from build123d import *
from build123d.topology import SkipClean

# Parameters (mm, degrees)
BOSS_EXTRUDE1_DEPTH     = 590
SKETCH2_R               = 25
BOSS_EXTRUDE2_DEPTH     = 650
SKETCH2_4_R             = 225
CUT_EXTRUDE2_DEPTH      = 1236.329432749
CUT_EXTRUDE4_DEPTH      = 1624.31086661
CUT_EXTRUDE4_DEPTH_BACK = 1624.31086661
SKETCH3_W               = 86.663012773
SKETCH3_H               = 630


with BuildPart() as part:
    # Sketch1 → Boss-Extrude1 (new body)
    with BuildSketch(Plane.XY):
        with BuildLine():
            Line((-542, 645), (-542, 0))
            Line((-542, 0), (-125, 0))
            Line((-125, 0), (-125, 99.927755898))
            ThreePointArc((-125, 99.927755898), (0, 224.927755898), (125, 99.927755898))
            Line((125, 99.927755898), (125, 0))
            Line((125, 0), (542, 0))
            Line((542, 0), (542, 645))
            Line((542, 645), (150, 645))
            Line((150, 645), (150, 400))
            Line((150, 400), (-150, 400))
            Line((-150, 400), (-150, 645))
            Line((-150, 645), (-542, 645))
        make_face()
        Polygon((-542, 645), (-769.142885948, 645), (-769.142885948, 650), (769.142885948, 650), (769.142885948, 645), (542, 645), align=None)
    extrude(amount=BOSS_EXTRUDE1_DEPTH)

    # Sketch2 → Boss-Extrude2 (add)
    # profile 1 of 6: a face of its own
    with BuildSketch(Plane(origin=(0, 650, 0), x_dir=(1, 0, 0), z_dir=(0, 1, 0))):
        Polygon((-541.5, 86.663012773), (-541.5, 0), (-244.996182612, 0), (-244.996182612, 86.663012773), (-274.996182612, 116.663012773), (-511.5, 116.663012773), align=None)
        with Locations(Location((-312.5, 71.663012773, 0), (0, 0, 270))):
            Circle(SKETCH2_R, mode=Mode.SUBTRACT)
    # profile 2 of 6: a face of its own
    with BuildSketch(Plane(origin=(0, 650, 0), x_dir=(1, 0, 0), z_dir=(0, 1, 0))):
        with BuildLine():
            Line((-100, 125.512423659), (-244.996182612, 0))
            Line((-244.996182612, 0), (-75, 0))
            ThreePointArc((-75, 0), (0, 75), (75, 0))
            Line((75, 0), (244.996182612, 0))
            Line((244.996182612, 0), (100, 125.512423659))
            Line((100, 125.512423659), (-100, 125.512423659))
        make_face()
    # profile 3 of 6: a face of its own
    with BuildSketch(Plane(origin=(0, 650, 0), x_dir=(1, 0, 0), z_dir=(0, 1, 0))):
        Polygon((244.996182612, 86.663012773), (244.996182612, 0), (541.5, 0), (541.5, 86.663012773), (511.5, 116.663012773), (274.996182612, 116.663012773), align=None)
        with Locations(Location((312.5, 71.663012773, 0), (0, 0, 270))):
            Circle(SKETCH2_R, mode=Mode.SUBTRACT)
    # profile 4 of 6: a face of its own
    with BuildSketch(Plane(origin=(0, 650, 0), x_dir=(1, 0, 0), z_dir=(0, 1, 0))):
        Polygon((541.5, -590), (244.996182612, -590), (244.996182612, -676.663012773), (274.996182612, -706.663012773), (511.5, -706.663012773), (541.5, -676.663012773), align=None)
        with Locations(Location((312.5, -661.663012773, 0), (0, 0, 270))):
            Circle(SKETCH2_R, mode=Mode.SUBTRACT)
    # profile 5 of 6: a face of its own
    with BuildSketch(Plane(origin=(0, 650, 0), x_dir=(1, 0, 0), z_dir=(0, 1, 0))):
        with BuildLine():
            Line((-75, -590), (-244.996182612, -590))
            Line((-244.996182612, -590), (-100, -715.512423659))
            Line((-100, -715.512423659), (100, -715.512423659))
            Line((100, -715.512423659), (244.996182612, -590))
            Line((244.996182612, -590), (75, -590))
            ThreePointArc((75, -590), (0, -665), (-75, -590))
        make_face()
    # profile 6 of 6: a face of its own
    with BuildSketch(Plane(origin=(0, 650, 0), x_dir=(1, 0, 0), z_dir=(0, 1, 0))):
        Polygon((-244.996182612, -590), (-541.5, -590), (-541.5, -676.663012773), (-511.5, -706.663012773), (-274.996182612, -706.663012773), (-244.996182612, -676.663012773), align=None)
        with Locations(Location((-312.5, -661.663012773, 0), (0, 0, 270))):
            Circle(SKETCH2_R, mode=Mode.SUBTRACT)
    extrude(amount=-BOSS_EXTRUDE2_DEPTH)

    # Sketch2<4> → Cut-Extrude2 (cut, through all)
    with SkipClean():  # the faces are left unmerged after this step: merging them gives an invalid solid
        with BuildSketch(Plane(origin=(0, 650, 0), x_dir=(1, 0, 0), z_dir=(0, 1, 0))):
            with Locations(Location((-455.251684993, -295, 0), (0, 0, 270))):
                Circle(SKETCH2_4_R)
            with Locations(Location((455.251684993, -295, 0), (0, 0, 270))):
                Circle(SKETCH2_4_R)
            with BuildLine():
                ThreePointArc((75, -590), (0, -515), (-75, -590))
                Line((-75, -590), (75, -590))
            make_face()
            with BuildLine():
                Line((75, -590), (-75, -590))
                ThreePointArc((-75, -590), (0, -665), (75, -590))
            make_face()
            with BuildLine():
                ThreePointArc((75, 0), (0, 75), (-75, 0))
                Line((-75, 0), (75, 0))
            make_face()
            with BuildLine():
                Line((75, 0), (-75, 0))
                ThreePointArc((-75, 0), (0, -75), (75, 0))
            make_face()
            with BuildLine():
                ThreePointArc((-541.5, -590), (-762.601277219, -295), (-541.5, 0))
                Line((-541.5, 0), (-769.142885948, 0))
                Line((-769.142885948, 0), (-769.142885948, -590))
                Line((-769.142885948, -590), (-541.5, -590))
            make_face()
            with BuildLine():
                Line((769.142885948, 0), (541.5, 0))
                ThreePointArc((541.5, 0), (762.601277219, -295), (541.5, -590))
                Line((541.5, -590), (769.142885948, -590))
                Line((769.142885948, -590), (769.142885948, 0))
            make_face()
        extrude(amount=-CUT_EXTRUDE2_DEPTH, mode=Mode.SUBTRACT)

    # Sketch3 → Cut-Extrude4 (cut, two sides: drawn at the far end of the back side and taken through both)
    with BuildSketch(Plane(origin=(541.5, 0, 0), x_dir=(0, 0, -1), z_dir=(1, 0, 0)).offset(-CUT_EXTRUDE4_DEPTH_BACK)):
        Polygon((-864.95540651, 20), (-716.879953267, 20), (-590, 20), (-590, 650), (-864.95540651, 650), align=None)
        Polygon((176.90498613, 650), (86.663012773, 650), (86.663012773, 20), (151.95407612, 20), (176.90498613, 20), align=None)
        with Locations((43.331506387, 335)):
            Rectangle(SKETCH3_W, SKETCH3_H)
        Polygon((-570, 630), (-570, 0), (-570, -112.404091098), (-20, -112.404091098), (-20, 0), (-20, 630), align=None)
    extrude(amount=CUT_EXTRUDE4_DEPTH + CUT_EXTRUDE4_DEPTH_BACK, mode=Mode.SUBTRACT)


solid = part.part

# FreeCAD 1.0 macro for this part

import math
import FreeCAD as App
import Part
import Sketcher

V = App.Vector
Q = App.Units.Quantity

doc = App.newDocument("Part")
body = doc.addObject("PartDesign::Body", "Body")

sketch1 = body.newObject("Sketcher::SketchObject", "Sketch")
sketch1.AttachmentSupport = (doc.getObject("XY_Plane"), [""])
sketch1.MapMode = "FlatFace"
sketch1.addGeometry([
    Part.LineSegment(V(-542, 645, 0), V(-542, 0, 0)),
    Part.LineSegment(V(-542, 0, 0), V(-125, 0, 0)),
    Part.LineSegment(V(-125, 0, 0), V(-125, 99.927756, 0)),
    Part.ArcOfCircle(Part.Circle(V(0, 99.927756, 0), V(0, 0, 1), 125), math.radians(0), math.radians(180)),
    Part.LineSegment(V(125, 99.927756, 0), V(125, 0, 0)),
    Part.LineSegment(V(125, 0, 0), V(542, 0, 0)),
    Part.LineSegment(V(542, 0, 0), V(542, 645, 0)),
    Part.LineSegment(V(542, 645, 0), V(769.142886, 645, 0)),
    Part.LineSegment(V(769.142886, 645, 0), V(769.142886, 650, 0)),
    Part.LineSegment(V(769.142886, 650, 0), V(-769.142886, 650, 0)),
    Part.LineSegment(V(-769.142886, 650, 0), V(-769.142886, 645, 0)),
    Part.LineSegment(V(-769.142886, 645, 0), V(-542, 645, 0)),
    Part.LineSegment(V(150, 645, 0), V(150, 400, 0)),
    Part.LineSegment(V(150, 400, 0), V(-150, 400, 0)),
    Part.LineSegment(V(-150, 400, 0), V(-150, 645, 0)),
    Part.LineSegment(V(-150, 645, 0), V(150, 645, 0)),
], False)
sketch1.addConstraint([
    Sketcher.Constraint("Coincident", 0, 2, 1, 1),
    Sketcher.Constraint("Coincident", 1, 2, 2, 1),
    Sketcher.Constraint("Tangent", 2, 2, 3, 2),
    Sketcher.Constraint("Tangent", 3, 1, 4, 1),
    Sketcher.Constraint("Coincident", 4, 2, 5, 1),
    Sketcher.Constraint("Coincident", 5, 2, 6, 1),
    Sketcher.Constraint("Coincident", 6, 2, 7, 1),
    Sketcher.Constraint("Coincident", 7, 2, 8, 1),
    Sketcher.Constraint("Coincident", 8, 2, 9, 1),
    Sketcher.Constraint("Coincident", 9, 2, 10, 1),
    Sketcher.Constraint("Coincident", 10, 2, 11, 1),
    Sketcher.Constraint("Coincident", 11, 2, 0, 1),
    Sketcher.Constraint("Coincident", 12, 2, 13, 1),
    Sketcher.Constraint("Coincident", 13, 2, 14, 1),
    Sketcher.Constraint("Coincident", 14, 2, 15, 1),
    Sketcher.Constraint("Coincident", 15, 2, 12, 1),
    Sketcher.Constraint("Vertical", 0),
    Sketcher.Constraint("Horizontal", 1),
    Sketcher.Constraint("Vertical", 2),
    Sketcher.Constraint("Vertical", 4),
    Sketcher.Constraint("Horizontal", 5),
    Sketcher.Constraint("Vertical", 6),
    Sketcher.Constraint("Horizontal", 7),
    Sketcher.Constraint("Vertical", 8),
    Sketcher.Constraint("Horizontal", 9),
    Sketcher.Constraint("Vertical", 10),
    Sketcher.Constraint("Horizontal", 11),
    Sketcher.Constraint("Vertical", 12),
    Sketcher.Constraint("Horizontal", 13),
    Sketcher.Constraint("Vertical", 14),
    Sketcher.Constraint("Horizontal", 15),
    Sketcher.Constraint("Symmetric", 1, 2, 4, 2, -1, 1),
    Sketcher.Constraint("Symmetric", 0, 2, 5, 2, -2),
    Sketcher.Constraint("Symmetric", 7, 2, 10, 2, -2),
    Sketcher.Constraint("Horizontal", 11, 2, 14, 2),
    Sketcher.Constraint("Radius", 3, Q("125 mm")),
    Sketcher.Constraint("DistanceX", 1, 1, 1, 2, Q("417 mm")),
    Sketcher.Constraint("DistanceX", 13, 2, 13, 1, Q("300 mm")),
    Sketcher.Constraint("DistanceY", 0, 2, 0, 1, Q("645 mm")),
    Sketcher.Constraint("DistanceY", 8, 1, 8, 2, Q("5 mm")),
    Sketcher.Constraint("DistanceY", 12, 2, 12, 1, Q("245 mm")),
    Sketcher.Constraint("DistanceX", -1, 1, 12, 2, Q("150 mm")),
    Sketcher.Constraint("DistanceX", 9, 2, 9, 1, Q("1538.285772 mm")),
    Sketcher.Constraint("DistanceY", 2, 1, 2, 2, Q("99.927756 mm")),
])
pad1 = body.newObject("PartDesign::Pad", "Pad")
pad1.Profile = sketch1
pad1.Length = 590

sketch2 = body.newObject("Sketcher::SketchObject", "Sketch001")
sketch2.AttachmentSupport = (doc.getObject("XZ_Plane"), [""])
sketch2.MapMode = "FlatFace"
sketch2.AttachmentOffset = App.Placement(V(0, 0, -650), App.Rotation())
sketch2.addGeometry([
    Part.LineSegment(V(-541.5, -86.663013, 0), V(-541.5, 0, 0)),
    Part.LineSegment(V(-541.5, 0, 0), V(-244.996183, 0, 0)),
    Part.LineSegment(V(-244.996183, 0, 0), V(-244.996183, -86.663013, 0)),
    Part.LineSegment(V(-244.996183, -86.663013, 0), V(-274.996183, -116.663013, 0)),
    Part.LineSegment(V(-274.996183, -116.663013, 0), V(-511.5, -116.663013, 0)),
    Part.LineSegment(V(-511.5, -116.663013, 0), V(-541.5, -86.663013, 0)),
    Part.Circle(V(-312.5, -71.663013, 0), V(0, 0, 1), 25),
    Part.LineSegment(V(-100, -125.512424, 0), V(-244.996183, 0, 0)),
    Part.LineSegment(V(-244.996183, 0, 0), V(-75, 0, 0)),
    Part.ArcOfCircle(Part.Circle(V(0, 0, 0), V(0, 0, 1), 75), math.radians(180), math.radians(360)),
    Part.LineSegment(V(75, 0, 0), V(244.996183, 0, 0)),
    Part.LineSegment(V(244.996183, 0, 0), V(100, -125.512424, 0)),
    Part.LineSegment(V(100, -125.512424, 0), V(-100, -125.512424, 0)),
    Part.LineSegment(V(244.996183, -86.663013, 0), V(244.996183, 0, 0)),
    Part.LineSegment(V(244.996183, 0, 0), V(541.5, 0, 0)),
    Part.LineSegment(V(541.5, 0, 0), V(541.5, -86.663013, 0)),
    Part.LineSegment(V(541.5, -86.663013, 0), V(511.5, -116.663013, 0)),
    Part.LineSegment(V(511.5, -116.663013, 0), V(274.996183, -116.663013, 0)),
    Part.LineSegment(V(274.996183, -116.663013, 0), V(244.996183, -86.663013, 0)),
    Part.Circle(V(312.5, -71.663013, 0), V(0, 0, 1), 25),
    Part.LineSegment(V(541.5, 590, 0), V(244.996183, 590, 0)),
    Part.LineSegment(V(244.996183, 590, 0), V(244.996183, 676.663013, 0)),
    Part.LineSegment(V(244.996183, 676.663013, 0), V(274.996183, 706.663013, 0)),
    Part.LineSegment(V(274.996183, 706.663013, 0), V(511.5, 706.663013, 0)),
    Part.LineSegment(V(511.5, 706.663013, 0), V(541.5, 676.663013, 0)),
    Part.LineSegment(V(541.5, 676.663013, 0), V(541.5, 590, 0)),
    Part.Circle(V(312.5, 661.663013, 0), V(0, 0, 1), 25),
    Part.LineSegment(V(-75, 590, 0), V(-244.996183, 590, 0)),
    Part.LineSegment(V(-244.996183, 590, 0), V(-100, 715.512424, 0)),
    Part.LineSegment(V(-100, 715.512424, 0), V(100, 715.512424, 0)),
    Part.LineSegment(V(100, 715.512424, 0), V(244.996183, 590, 0)),
    Part.LineSegment(V(244.996183, 590, 0), V(75, 590, 0)),
    Part.ArcOfCircle(Part.Circle(V(0, 590, 0), V(0, 0, 1), 75), math.radians(0), math.radians(180)),
    Part.LineSegment(V(-244.996183, 590, 0), V(-541.5, 590, 0)),
    Part.LineSegment(V(-541.5, 590, 0), V(-541.5, 676.663013, 0)),
    Part.LineSegment(V(-541.5, 676.663013, 0), V(-511.5, 706.663013, 0)),
    Part.LineSegment(V(-511.5, 706.663013, 0), V(-274.996183, 706.663013, 0)),
    Part.LineSegment(V(-274.996183, 706.663013, 0), V(-244.996183, 676.663013, 0)),
    Part.LineSegment(V(-244.996183, 676.663013, 0), V(-244.996183, 590, 0)),
    Part.Circle(V(-312.5, 661.663013, 0), V(0, 0, 1), 25),
], False)
sketch2.addConstraint([
    Sketcher.Constraint("Coincident", 0, 2, 1, 1),
    Sketcher.Constraint("Coincident", 1, 2, 2, 1),
    Sketcher.Constraint("Coincident", 2, 2, 3, 1),
    Sketcher.Constraint("Coincident", 3, 2, 4, 1),
    Sketcher.Constraint("Coincident", 4, 2, 5, 1),
    Sketcher.Constraint("Coincident", 5, 2, 0, 1),
    Sketcher.Constraint("Coincident", 7, 2, 8, 1),
    Sketcher.Constraint("Coincident", 8, 2, 9, 1),
    Sketcher.Constraint("Coincident", 9, 2, 10, 1),
    Sketcher.Constraint("Coincident", 10, 2, 11, 1),
    Sketcher.Constraint("Coincident", 11, 2, 12, 1),
    Sketcher.Constraint("Coincident", 12, 2, 7, 1),
    Sketcher.Constraint("Coincident", 13, 2, 14, 1),
    Sketcher.Constraint("Coincident", 14, 2, 15, 1),
    Sketcher.Constraint("Coincident", 15, 2, 16, 1),
    Sketcher.Constraint("Coincident", 16, 2, 17, 1),
    Sketcher.Constraint("Coincident", 17, 2, 18, 1),
    Sketcher.Constraint("Coincident", 18, 2, 13, 1),
    Sketcher.Constraint("Coincident", 20, 2, 21, 1),
    Sketcher.Constraint("Coincident", 21, 2, 22, 1),
    Sketcher.Constraint("Coincident", 22, 2, 23, 1),
    Sketcher.Constraint("Coincident", 23, 2, 24, 1),
    Sketcher.Constraint("Coincident", 24, 2, 25, 1),
    Sketcher.Constraint("Coincident", 25, 2, 20, 1),
    Sketcher.Constraint("Coincident", 27, 2, 28, 1),
    Sketcher.Constraint("Coincident", 28, 2, 29, 1),
    Sketcher.Constraint("Coincident", 29, 2, 30, 1),
    Sketcher.Constraint("Coincident", 30, 2, 31, 1),
    Sketcher.Constraint("Coincident", 31, 2, 32, 1),
    Sketcher.Constraint("Coincident", 32, 2, 27, 1),
    Sketcher.Constraint("Coincident", 33, 2, 34, 1),
    Sketcher.Constraint("Coincident", 34, 2, 35, 1),
    Sketcher.Constraint("Coincident", 35, 2, 36, 1),
    Sketcher.Constraint("Coincident", 36, 2, 37, 1),
    Sketcher.Constraint("Coincident", 37, 2, 38, 1),
    Sketcher.Constraint("Coincident", 38, 2, 33, 1),
    Sketcher.Constraint("Vertical", 0),
    Sketcher.Constraint("Horizontal", 1),
    Sketcher.Constraint("Vertical", 2),
    Sketcher.Constraint("Horizontal", 4),
    Sketcher.Constraint("Horizontal", 8),
    Sketcher.Constraint("Horizontal", 10),
    Sketcher.Constraint("Horizontal", 12),
    Sketcher.Constraint("Vertical", 13),
    Sketcher.Constraint("Horizontal", 14),
    Sketcher.Constraint("Vertical", 15),
    Sketcher.Constraint("Horizontal", 17),
    Sketcher.Constraint("Horizontal", 20),
    Sketcher.Constraint("Vertical", 21),
    Sketcher.Constraint("Horizontal", 23),
    Sketcher.Constraint("Vertical", 25),
    Sketcher.Constraint("Horizontal", 27),
    Sketcher.Constraint("Horizontal", 29),
    Sketcher.Constraint("Horizontal", 31),
    Sketcher.Constraint("Horizontal", 33),
    Sketcher.Constraint("Vertical", 34),
    Sketcher.Constraint("Horizontal", 36),
    Sketcher.Constraint("Vertical", 38),
    Sketcher.Constraint("Coincident", 9, 3, -1, 1),
    Sketcher.Constraint("Coincident", 7, 2, 1, 2),
    Sketcher.Constraint("Coincident", 13, 2, 10, 2),
    Sketcher.Constraint("Coincident", 30, 2, 20, 2),
    Sketcher.Constraint("Coincident", 38, 2, 27, 2),
    Sketcher.Constraint("Equal", 6, 19),
    Sketcher.Constraint("Equal", 19, 26),
    Sketcher.Constraint("Equal", 9, 32),
    Sketcher.Constraint("Equal", 26, 39),
    Sketcher.Constraint("Symmetric", 1, 2, 10, 2, -1, 1),
    Sketcher.Constraint("Symmetric", 6, 3, 19, 3, -2),
    Sketcher.Constraint("Symmetric", 26, 3, 39, 3, -2),
    Sketcher.Constraint("Symmetric", 0, 2, 14, 2, -2),
    Sketcher.Constraint("Symmetric", 4, 2, 16, 2, -2),
    Sketcher.Constraint("Symmetric", 20, 2, 27, 2, -2),
    Sketcher.Constraint("Symmetric", 24, 2, 34, 2, -2),
    Sketcher.Constraint("Symmetric", 23, 2, 35, 2, -2),
    Sketcher.Constraint("PointOnObject", 32, 3, -2),
    Sketcher.Constraint("Perpendicular", 3, 5),
    Sketcher.Constraint("Perpendicular", 5, 16),
    Sketcher.Constraint("Perpendicular", 16, 18),
    Sketcher.Constraint("Perpendicular", 18, 22),
    Sketcher.Constraint("Perpendicular", 22, 24),
    Sketcher.Constraint("Parallel", 11, 28),
    Sketcher.Constraint("Parallel", 7, 30),
    Sketcher.Constraint("Perpendicular", 24, 35),
    Sketcher.Constraint("Perpendicular", 35, 37),
    Sketcher.Constraint("Horizontal", 2, 2, 5, 2),
    Sketcher.Constraint("Horizontal", 15, 2, 18, 2),
    Sketcher.Constraint("Horizontal", 32, 3, 20, 2),
    Sketcher.Constraint("Horizontal", 21, 2, 24, 2),
    Sketcher.Constraint("Horizontal", 34, 2, 37, 2),
    Sketcher.Constraint("Vertical", 19, 3, 26, 3),
    Sketcher.Constraint("Vertical", 18, 2, 20, 2),
    Sketcher.Constraint("Vertical", 17, 2, 22, 2),
    Sketcher.Constraint("Vertical", 16, 2, 23, 2),
    Sketcher.Constraint("Vertical", 12, 2, 28, 2),
    Sketcher.Constraint("Vertical", 11, 2, 29, 2),
    Sketcher.Constraint("Equal", 15, 21),
    Sketcher.Constraint("Diameter", 6, Q("50 mm")),
    Sketcher.Constraint("Radius", 9, Q("75 mm")),
    Sketcher.Constraint("DistanceX", 12, 2, 12, 1, Q("200 mm")),
    Sketcher.Constraint("DistanceY", -1, 1, 32, 3, Q("590 mm")),
    Sketcher.Constraint("DistanceX", 6, 3, 19, 3, Q("625 mm")),
    Sketcher.Constraint("DistanceX", 0, 2, 6, 3, Q("229 mm")),
    Sketcher.Constraint("DistanceY", 2, 2, 6, 3, Q("15 mm")),
    Sketcher.Constraint("DistanceX", 3, 2, 2, 2, Q("30 mm")),
    Sketcher.Constraint("DistanceY", 26, 3, 21, 2, Q("15 mm")),
    Sketcher.Constraint("DistanceX", 1, 1, 1, 2, Q("296.503817 mm")),
    Sketcher.Constraint("DistanceY", 0, 1, 0, 2, Q("86.663013 mm")),
    Sketcher.Constraint("DistanceY", 11, 2, 19, 3, Q("53.849411 mm")),
])
pad2 = body.newObject("PartDesign::Pad", "Pad001")
pad2.Profile = sketch2
pad2.Length = 650

sketch3 = body.newObject("Sketcher::SketchObject", "Sketch002")
sketch3.AttachmentSupport = (doc.getObject("XZ_Plane"), [""])
sketch3.MapMode = "FlatFace"
sketch3.AttachmentOffset = App.Placement(V(0, 0, -650), App.Rotation())
sketch3.addGeometry([
    Part.Circle(V(-455.251685, 295, 0), V(0, 0, 1), 225),
    Part.Circle(V(455.251685, 295, 0), V(0, 0, 1), 225),
    Part.ArcOfCircle(Part.Circle(V(0, 590, 0), V(0, 0, 1), 75), math.radians(180), math.radians(360)),
    Part.LineSegment(V(-75, 590, 0), V(75, 590, 0)),
    Part.LineSegment(V(75, 590, 0), V(-75, 590, 0)),
    Part.ArcOfCircle(Part.Circle(V(0, 590, 0), V(0, 0, 1), 75), math.radians(0), math.radians(180)),
    Part.ArcOfCircle(Part.Circle(V(0, 0, 0), V(0, 0, 1), 75), math.radians(180), math.radians(360)),
    Part.LineSegment(V(-75, 0, 0), V(75, 0, 0)),
    Part.LineSegment(V(75, 0, 0), V(-75, 0, 0)),
    Part.ArcOfCircle(Part.Circle(V(0, 0, 0), V(0, 0, 1), 75), math.radians(0), math.radians(180)),
    Part.ArcOfCircle(Part.Circle(V(-455.251685, 295, 0), V(0, 0, 1), 307.349592), math.radians(106.297187), math.radians(253.702813)),
    Part.LineSegment(V(-541.5, 0, 0), V(-769.142886, 0, 0)),
    Part.LineSegment(V(-769.142886, 0, 0), V(-769.142886, 590, 0)),
    Part.LineSegment(V(-769.142886, 590, 0), V(-541.5, 590, 0)),
    Part.LineSegment(V(769.142886, 0, 0), V(541.5, 0, 0)),
    Part.ArcOfCircle(Part.Circle(V(455.251685, 295, 0), V(0, 0, 1), 307.349592), math.radians(-73.702813), math.radians(73.702813)),
    Part.LineSegment(V(541.5, 590, 0), V(769.142886, 590, 0)),
    Part.LineSegment(V(769.142886, 590, 0), V(769.142886, 0, 0)),
], False)
sketch3.addConstraint([
    Sketcher.Constraint("Coincident", 2, 1, 3, 1),
    Sketcher.Constraint("Coincident", 3, 2, 2, 2),
    Sketcher.Constraint("Coincident", 4, 1, 5, 1),
    Sketcher.Constraint("Coincident", 5, 2, 4, 2),
    Sketcher.Constraint("Coincident", 6, 1, 7, 1),
    Sketcher.Constraint("Coincident", 7, 2, 6, 2),
    Sketcher.Constraint("Coincident", 8, 1, 9, 1),
    Sketcher.Constraint("Coincident", 9, 2, 8, 2),
    Sketcher.Constraint("Coincident", 10, 2, 11, 1),
    Sketcher.Constraint("Coincident", 11, 2, 12, 1),
    Sketcher.Constraint("Coincident", 12, 2, 13, 1),
    Sketcher.Constraint("Coincident", 13, 2, 10, 1),
    Sketcher.Constraint("Coincident", 14, 2, 15, 1),
    Sketcher.Constraint("Coincident", 15, 2, 16, 1),
    Sketcher.Constraint("Coincident", 16, 2, 17, 1),
    Sketcher.Constraint("Coincident", 17, 2, 14, 1),
    Sketcher.Constraint("Horizontal", 3),
    Sketcher.Constraint("Horizontal", 4),
    Sketcher.Constraint("Horizontal", 7),
    Sketcher.Constraint("Horizontal", 8),
    Sketcher.Constraint("Horizontal", 11),
    Sketcher.Constraint("Vertical", 12),
    Sketcher.Constraint("Horizontal", 13),
    Sketcher.Constraint("Horizontal", 14),
    Sketcher.Constraint("Horizontal", 16),
    Sketcher.Constraint("Vertical", 17),
    Sketcher.Constraint("Coincident", 6, 3, -1, 1),
    Sketcher.Constraint("Coincident", 9, 3, -1, 1),
    Sketcher.Constraint("Coincident", 5, 3, 2, 3),
    Sketcher.Constraint("Coincident", 10, 3, 0, 3),
    Sketcher.Constraint("Coincident", 15, 3, 1, 3),
    Sketcher.Constraint("Coincident", 4, 1, 3, 2),
    Sketcher.Constraint("Coincident", 8, 1, 7, 2),
    Sketcher.Constraint("Equal", 0, 1),
    Sketcher.Constraint("Equal", 5, 6),
    Sketcher.Constraint("Equal", 10, 15),
    Sketcher.Constraint("Symmetric", 10, 2, 14, 2, -1, 1),
    Sketcher.Constraint("Symmetric", 0, 3, 1, 3, -2),
    Sketcher.Constraint("Symmetric", 12, 2, 16, 2, -2),
    Sketcher.Constraint("PointOnObject", 2, 3, -2),
    Sketcher.Constraint("PointOnObject", 6, 1, -1),
    Sketcher.Constraint("Horizontal", 5, 3, 2, 1),
    Sketcher.Constraint("Horizontal", 5, 2, 12, 2),
    Sketcher.Constraint("Vertical", 10, 2, 13, 2),
    Sketcher.Constraint("Diameter", 0, Q("450 mm")),
    Sketcher.Constraint("Radius", 2, Q("75 mm")),
    Sketcher.Constraint("DistanceY", 12, 1, 12, 2, Q("590 mm")),
    Sketcher.Constraint("DistanceX", 13, 2, -1, 1, Q("541.5 mm")),
    Sketcher.Constraint("Radius", 10, Q("307.349592 mm")),
    Sketcher.Constraint("DistanceX", 11, 2, 0, 3, Q("313.891201 mm")),
])
pocket1 = body.newObject("PartDesign::Pocket", "Pocket")
pocket1.Profile = sketch3
pocket1.Type = "ThroughAll"
pocket1.Reversed = True

sketch4 = body.newObject("Sketcher::SketchObject", "Sketch003")
sketch4.AttachmentSupport = (doc.getObject("YZ_Plane"), [""])
sketch4.MapMode = "FlatFace"
sketch4.AttachmentOffset = App.Placement(V(0, 0, 541.5), App.Rotation())
sketch4.addGeometry([
    Part.LineSegment(V(20, 864.955407, 0), V(20, 590, 0)),
    Part.LineSegment(V(20, 590, 0), V(650, 590, 0)),
    Part.LineSegment(V(650, 590, 0), V(650, 864.955407, 0)),
    Part.LineSegment(V(650, 864.955407, 0), V(20, 864.955407, 0)),
    Part.LineSegment(V(650, -176.904986, 0), V(650, 0, 0)),
    Part.LineSegment(V(650, 0, 0), V(20, 0, 0)),
    Part.LineSegment(V(20, 0, 0), V(20, -176.904986, 0)),
    Part.LineSegment(V(20, -176.904986, 0), V(650, -176.904986, 0)),
    Part.LineSegment(V(630, 570, 0), V(-112.404091, 570, 0)),
    Part.LineSegment(V(-112.404091, 570, 0), V(-112.404091, 20, 0)),
    Part.LineSegment(V(-112.404091, 20, 0), V(630, 20, 0)),
    Part.LineSegment(V(630, 20, 0), V(630, 570, 0)),
], False)
sketch4.addConstraint([
    Sketcher.Constraint("Coincident", 0, 2, 1, 1),
    Sketcher.Constraint("Coincident", 1, 2, 2, 1),
    Sketcher.Constraint("Coincident", 2, 2, 3, 1),
    Sketcher.Constraint("Coincident", 3, 2, 0, 1),
    Sketcher.Constraint("Coincident", 4, 2, 5, 1),
    Sketcher.Constraint("Coincident", 5, 2, 6, 1),
    Sketcher.Constraint("Coincident", 6, 2, 7, 1),
    Sketcher.Constraint("Coincident", 7, 2, 4, 1),
    Sketcher.Constraint("Coincident", 8, 2, 9, 1),
    Sketcher.Constraint("Coincident", 9, 2, 10, 1),
    Sketcher.Constraint("Coincident", 10, 2, 11, 1),
    Sketcher.Constraint("Coincident", 11, 2, 8, 1),
    Sketcher.Constraint("Vertical", 0),
    Sketcher.Constraint("Horizontal", 1),
    Sketcher.Constraint("Vertical", 2),
    Sketcher.Constraint("Horizontal", 3),
    Sketcher.Constraint("Vertical", 4),
    Sketcher.Constraint("Horizontal", 5),
    Sketcher.Constraint("Vertical", 6),
    Sketcher.Constraint("Horizontal", 7),
    Sketcher.Constraint("Horizontal", 8),
    Sketcher.Constraint("Vertical", 9),
    Sketcher.Constraint("Horizontal", 10),
    Sketcher.Constraint("Vertical", 11),
    Sketcher.Constraint("PointOnObject", 4, 2, -1),
    Sketcher.Constraint("Vertical", 2, 2, 4, 2),
    Sketcher.Constraint("Vertical", 3, 2, 5, 2),
    Sketcher.Constraint("DistanceX", 1, 1, 1, 2, Q("630 mm")),
    Sketcher.Constraint("DistanceY", 9, 2, 9, 1, Q("550 mm")),
    Sketcher.Constraint("DistanceX", -1, 1, 0, 2, Q("20 mm")),
    Sketcher.Constraint("DistanceY", -1, 1, 0, 2, Q("590 mm")),
    Sketcher.Constraint("DistanceY", -1, 1, 8, 2, Q("570 mm")),
    Sketcher.Constraint("DistanceX", -1, 1, 10, 2, Q("630 mm")),
    Sketcher.Constraint("DistanceX", 8, 2, 8, 1, Q("742.404091 mm")),
    Sketcher.Constraint("DistanceY", 0, 2, 0, 1, Q("274.955407 mm")),
    Sketcher.Constraint("DistanceY", 4, 1, 4, 2, Q("176.904986 mm")),
])
pocket2 = body.newObject("PartDesign::Pocket", "Pocket001")
pocket2.Profile = sketch4
pocket2.Type = "ThroughAll"
pocket2.Midplane = True

doc.recompute()
